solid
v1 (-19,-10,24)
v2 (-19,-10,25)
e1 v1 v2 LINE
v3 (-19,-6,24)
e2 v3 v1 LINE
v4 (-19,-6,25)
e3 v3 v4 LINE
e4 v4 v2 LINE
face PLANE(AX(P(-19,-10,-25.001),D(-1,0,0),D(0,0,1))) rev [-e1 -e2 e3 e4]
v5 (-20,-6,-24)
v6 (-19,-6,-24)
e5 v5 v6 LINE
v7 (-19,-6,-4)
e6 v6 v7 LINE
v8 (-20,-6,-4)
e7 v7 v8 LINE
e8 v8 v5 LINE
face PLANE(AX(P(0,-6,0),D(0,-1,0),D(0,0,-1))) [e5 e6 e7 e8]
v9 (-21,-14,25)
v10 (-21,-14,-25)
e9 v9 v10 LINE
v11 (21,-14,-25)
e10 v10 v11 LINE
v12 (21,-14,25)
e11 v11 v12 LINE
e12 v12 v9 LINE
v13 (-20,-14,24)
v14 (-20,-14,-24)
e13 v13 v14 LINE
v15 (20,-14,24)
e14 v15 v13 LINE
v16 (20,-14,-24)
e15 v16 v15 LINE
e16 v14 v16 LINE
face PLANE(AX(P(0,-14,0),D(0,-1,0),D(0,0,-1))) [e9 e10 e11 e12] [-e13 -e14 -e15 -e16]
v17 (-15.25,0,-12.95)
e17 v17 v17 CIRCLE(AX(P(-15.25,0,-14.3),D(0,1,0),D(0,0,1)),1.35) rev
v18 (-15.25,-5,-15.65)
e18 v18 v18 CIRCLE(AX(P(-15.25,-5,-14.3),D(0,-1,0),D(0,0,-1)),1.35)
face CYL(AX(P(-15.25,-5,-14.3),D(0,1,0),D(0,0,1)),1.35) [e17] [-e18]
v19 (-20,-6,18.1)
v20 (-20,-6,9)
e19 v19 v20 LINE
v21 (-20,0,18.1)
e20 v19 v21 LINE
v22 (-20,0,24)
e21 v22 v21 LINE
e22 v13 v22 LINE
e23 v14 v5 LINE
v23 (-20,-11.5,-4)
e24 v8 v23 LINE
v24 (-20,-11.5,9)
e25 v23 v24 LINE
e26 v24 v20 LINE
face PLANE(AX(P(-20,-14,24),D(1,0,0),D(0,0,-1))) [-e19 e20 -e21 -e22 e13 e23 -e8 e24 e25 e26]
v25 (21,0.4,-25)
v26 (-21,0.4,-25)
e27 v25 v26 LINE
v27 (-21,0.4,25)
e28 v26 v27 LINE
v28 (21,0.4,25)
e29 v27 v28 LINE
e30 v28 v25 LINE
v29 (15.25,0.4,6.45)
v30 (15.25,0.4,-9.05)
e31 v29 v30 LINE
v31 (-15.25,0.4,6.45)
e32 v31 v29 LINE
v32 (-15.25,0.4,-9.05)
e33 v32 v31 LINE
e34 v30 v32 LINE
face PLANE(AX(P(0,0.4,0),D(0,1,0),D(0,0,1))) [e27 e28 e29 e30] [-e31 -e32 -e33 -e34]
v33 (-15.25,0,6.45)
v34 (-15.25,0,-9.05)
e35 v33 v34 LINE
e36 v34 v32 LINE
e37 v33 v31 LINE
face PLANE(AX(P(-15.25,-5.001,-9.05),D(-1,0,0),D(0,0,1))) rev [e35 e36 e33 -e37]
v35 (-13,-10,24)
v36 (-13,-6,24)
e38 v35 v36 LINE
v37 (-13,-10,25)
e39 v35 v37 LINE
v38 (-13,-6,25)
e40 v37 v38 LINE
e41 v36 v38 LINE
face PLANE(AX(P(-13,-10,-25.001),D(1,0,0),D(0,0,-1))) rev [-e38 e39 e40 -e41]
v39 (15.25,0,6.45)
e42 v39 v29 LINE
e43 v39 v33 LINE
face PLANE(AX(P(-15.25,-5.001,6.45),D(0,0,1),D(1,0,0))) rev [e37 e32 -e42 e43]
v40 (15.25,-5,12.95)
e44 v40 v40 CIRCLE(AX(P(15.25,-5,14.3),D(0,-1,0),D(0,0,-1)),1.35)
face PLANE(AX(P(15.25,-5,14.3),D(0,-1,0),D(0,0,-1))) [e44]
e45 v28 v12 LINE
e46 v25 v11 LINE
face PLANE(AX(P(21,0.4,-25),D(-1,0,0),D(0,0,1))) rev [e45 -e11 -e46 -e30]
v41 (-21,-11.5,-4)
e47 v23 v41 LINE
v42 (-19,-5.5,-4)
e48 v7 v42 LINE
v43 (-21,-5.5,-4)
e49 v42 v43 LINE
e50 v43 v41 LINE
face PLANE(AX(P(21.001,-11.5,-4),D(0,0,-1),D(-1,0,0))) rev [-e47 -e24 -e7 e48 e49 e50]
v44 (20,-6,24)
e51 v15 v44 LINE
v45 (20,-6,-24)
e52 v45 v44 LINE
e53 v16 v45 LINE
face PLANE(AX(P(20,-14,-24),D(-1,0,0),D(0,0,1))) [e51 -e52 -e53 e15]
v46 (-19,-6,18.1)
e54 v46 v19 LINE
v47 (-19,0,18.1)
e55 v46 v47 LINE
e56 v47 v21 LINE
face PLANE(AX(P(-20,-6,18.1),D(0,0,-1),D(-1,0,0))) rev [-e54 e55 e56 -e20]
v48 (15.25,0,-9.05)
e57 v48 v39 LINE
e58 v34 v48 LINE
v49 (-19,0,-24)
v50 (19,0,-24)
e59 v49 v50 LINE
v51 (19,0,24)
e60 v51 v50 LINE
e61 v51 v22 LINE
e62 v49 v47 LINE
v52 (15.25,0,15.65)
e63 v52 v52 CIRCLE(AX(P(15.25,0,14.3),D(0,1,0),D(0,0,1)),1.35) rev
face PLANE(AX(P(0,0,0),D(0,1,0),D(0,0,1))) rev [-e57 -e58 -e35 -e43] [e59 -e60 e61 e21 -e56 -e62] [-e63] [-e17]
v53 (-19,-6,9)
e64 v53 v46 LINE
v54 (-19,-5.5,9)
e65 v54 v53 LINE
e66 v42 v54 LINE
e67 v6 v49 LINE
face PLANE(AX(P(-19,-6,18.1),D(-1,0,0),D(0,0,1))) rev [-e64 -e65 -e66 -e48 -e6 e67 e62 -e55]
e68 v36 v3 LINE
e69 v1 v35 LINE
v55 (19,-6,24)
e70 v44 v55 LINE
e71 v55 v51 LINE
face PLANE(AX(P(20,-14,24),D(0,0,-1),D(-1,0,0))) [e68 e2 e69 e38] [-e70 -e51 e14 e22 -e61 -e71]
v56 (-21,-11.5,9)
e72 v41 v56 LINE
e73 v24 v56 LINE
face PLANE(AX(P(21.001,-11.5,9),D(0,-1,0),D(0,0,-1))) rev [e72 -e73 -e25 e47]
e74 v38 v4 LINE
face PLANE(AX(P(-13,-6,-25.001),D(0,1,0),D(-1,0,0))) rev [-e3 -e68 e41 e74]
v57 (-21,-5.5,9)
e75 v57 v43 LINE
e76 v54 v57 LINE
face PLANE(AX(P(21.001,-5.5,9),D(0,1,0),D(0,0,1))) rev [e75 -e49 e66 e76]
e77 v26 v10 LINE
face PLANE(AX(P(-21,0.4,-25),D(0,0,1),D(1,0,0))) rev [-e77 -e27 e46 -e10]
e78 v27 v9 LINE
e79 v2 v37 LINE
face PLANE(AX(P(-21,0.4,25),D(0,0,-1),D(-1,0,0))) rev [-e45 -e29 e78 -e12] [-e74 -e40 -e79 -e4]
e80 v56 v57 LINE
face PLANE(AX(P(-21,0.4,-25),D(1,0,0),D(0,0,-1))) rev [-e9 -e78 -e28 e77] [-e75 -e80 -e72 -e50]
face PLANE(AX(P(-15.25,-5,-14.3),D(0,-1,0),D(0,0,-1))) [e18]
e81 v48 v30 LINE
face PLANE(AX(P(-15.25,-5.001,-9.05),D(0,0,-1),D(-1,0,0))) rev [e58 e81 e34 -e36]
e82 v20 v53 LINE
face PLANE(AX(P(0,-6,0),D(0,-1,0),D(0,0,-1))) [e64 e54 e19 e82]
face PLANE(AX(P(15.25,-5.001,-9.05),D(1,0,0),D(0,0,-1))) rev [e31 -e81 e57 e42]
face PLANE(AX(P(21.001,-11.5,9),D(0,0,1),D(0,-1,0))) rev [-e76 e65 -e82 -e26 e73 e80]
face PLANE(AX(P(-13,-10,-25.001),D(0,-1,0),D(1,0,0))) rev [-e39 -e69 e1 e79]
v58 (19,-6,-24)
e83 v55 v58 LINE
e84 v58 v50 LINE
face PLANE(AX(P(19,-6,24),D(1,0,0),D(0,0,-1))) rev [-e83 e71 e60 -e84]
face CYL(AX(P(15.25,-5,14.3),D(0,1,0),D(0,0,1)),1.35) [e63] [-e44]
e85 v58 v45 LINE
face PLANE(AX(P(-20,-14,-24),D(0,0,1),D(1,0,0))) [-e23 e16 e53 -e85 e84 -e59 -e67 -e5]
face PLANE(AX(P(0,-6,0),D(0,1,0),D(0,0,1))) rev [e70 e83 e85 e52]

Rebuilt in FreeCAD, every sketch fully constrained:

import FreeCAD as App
import Part
import Sketcher

V = App.Vector
Q = App.Units.Quantity


def add_polygon(sketch, points):
    """Adds a closed chain of lines whose ends are joined by coincident constraints."""
    first, n = sketch.GeometryCount, len(points)
    for a, b in zip(points, points[1:] + points[:1]):
        sketch.addGeometry(Part.LineSegment(App.Vector(*a, 0), App.Vector(*b, 0)), False)
    for i in range(n):
        sketch.addConstraint(Sketcher.Constraint("Coincident", first + i, 2, first + (i + 1) % n, 1))

doc = App.newDocument("Part")
body = doc.addObject("PartDesign::Body", "Body")

# Sketch on XZ plane
sketch1 = body.newObject("Sketcher::SketchObject", "Sketch")
sketch1.AttachmentSupport = (doc.getObject("XZ_Plane"), [""])
sketch1.MapMode = "FlatFace"
add_polygon(sketch1, [(-21, -25), (-21, 25), (21, 25), (21, -25)])  # lines 0-3
sketch1.addConstraint([
    Sketcher.Constraint("Vertical", 0),
    Sketcher.Constraint("Horizontal", 1),
    Sketcher.Constraint("Vertical", 2),
    Sketcher.Constraint("Horizontal", 3),
    Sketcher.Constraint("Symmetric", 0, 2, 2, 2, -1, 1),
    Sketcher.Constraint("DistanceX", 1, 1, 1, 2, Q("42 mm")),
    Sketcher.Constraint("DistanceY", 0, 1, 0, 2, Q("50 mm")),
])
pad1 = body.newObject("PartDesign::Pad", "Pad")
pad1.Profile = sketch1
pad1.Length = 0.4
pad1.Reversed = True

# Sketch on XZ plane
sketch2 = body.newObject("Sketcher::SketchObject", "Sketch001")
sketch2.AttachmentSupport = (doc.getObject("XZ_Plane"), [""])
sketch2.MapMode = "FlatFace"
sketch2.addGeometry([
    Part.Circle(V(15.2, 14.3, 0), V(0, 0, 1), 1.4),
    Part.Circle(V(-15.2, -14.3, 0), V(0, 0, 1), 1.4),
], False)
sketch2.addConstraint([
    Sketcher.Constraint("Equal", 0, 1),
    Sketcher.Constraint("Symmetric", 0, 3, 1, 3, -1, 1),
    Sketcher.Constraint("Diameter", 0, Q("2.7 mm")),
    Sketcher.Constraint("DistanceY", -1, 1, 0, 3, Q("14.3 mm")),
    Sketcher.Constraint("DistanceX", 1, 3, 0, 3, Q("30.5 mm")),
])
pad2 = body.newObject("PartDesign::Pad", "Pad001")
pad2.Profile = sketch2
pad2.Length = 5

# Sketch on XZ plane
sketch3 = body.newObject("Sketcher::SketchObject", "Sketch002")
sketch3.AttachmentSupport = (doc.getObject("XZ_Plane"), [""])
sketch3.MapMode = "FlatFace"
sketch3.AttachmentOffset = App.Placement(V(0, 0, -0.4), App.Rotation())
add_polygon(sketch3, [(-15, -9), (-15, 6), (15, 6), (15, -9)])  # lines 0-3
sketch3.addConstraint([
    Sketcher.Constraint("Vertical", 0),
    Sketcher.Constraint("Horizontal", 1),
    Sketcher.Constraint("Vertical", 2),
    Sketcher.Constraint("Horizontal", 3),
    Sketcher.Constraint("DistanceX", 1, 1, 1, 2, Q("30.5 mm")),
    Sketcher.Constraint("DistanceY", 0, 1, 0, 2, Q("15.5 mm")),
    Sketcher.Constraint("DistanceX", 0, 2, -1, 1, Q("15.25 mm")),
    Sketcher.Constraint("DistanceY", -1, 1, 0, 2, Q("6.45 mm")),
])
pocket1 = body.newObject("PartDesign::Pocket", "Pocket")
pocket1.Profile = sketch3
pocket1.Type = "UpToFirst"
pocket1.Reversed = True

# Sketch on XZ plane
sketch4 = body.newObject("Sketcher::SketchObject", "Sketch003")
sketch4.AttachmentSupport = (doc.getObject("XZ_Plane"), [""])
sketch4.MapMode = "FlatFace"
add_polygon(sketch4, [(-21, 25), (-21, -25), (21, -25), (21, 25)])  # lines 0-3
add_polygon(sketch4, [(20, -24), (-20, -24), (-20, 24), (20, 24)])  # lines 4-7
sketch4.addConstraint([
    Sketcher.Constraint("Vertical", 0),
    Sketcher.Constraint("Horizontal", 1),
    Sketcher.Constraint("Vertical", 2),
    Sketcher.Constraint("Horizontal", 3),
    Sketcher.Constraint("Horizontal", 4),
    Sketcher.Constraint("Vertical", 5),
    Sketcher.Constraint("Horizontal", 6),
    Sketcher.Constraint("Vertical", 7),
    Sketcher.Constraint("Symmetric", 0, 2, 2, 2, -1, 1),
    Sketcher.Constraint("Symmetric", 4, 2, 6, 2, -1, 1),
    Sketcher.Constraint("DistanceX", 1, 1, 1, 2, Q("42 mm")),
    Sketcher.Constraint("DistanceX", 4, 2, 4, 1, Q("40 mm")),
    Sketcher.Constraint("DistanceY", 0, 2, 0, 1, Q("50 mm")),
    Sketcher.Constraint("DistanceY", 5, 1, 5, 2, Q("48 mm")),
])
pad3 = body.newObject("PartDesign::Pad", "Pad002")
pad3.Profile = sketch4
pad3.Length = 14

# Sketch on XZ plane
sketch5 = body.newObject("Sketcher::SketchObject", "Sketch004")
sketch5.AttachmentSupport = (doc.getObject("XZ_Plane"), [""])
sketch5.MapMode = "FlatFace"
add_polygon(sketch5, [(-20, 18.1), (-20, -24), (-19, -24), (-19, 18.1)])  # lines 0-3
add_polygon(sketch5, [(19, 24), (19, -24), (20, -24), (20, 24)])  # lines 4-7
sketch5.addConstraint([
    Sketcher.Constraint("Vertical", 0),
    Sketcher.Constraint("Horizontal", 1),
    Sketcher.Constraint("Vertical", 2),
    Sketcher.Constraint("Horizontal", 3),
    Sketcher.Constraint("Vertical", 4),
    Sketcher.Constraint("Horizontal", 5),
    Sketcher.Constraint("Vertical", 6),
    Sketcher.Constraint("Horizontal", 7),
    Sketcher.Constraint("Symmetric", 0, 2, 6, 2, -1, 1),
    Sketcher.Constraint("Symmetric", 1, 2, 4, 2, -2),
    Sketcher.Constraint("DistanceX", 1, 1, 1, 2, Q("1 mm")),
    Sketcher.Constraint("DistanceY", 4, 2, 4, 1, Q("48 mm")),
    Sketcher.Constraint("DistanceY", 0, 2, 0, 1, Q("42.1 mm")),
    Sketcher.Constraint("DistanceX", 0, 2, -1, 1, Q("20 mm")),
])
pad4 = body.newObject("PartDesign::Pad", "Pad003")
pad4.Profile = sketch5
pad4.Length = 6

# Sketch on YZ plane
sketch6 = body.newObject("Sketcher::SketchObject", "Sketch005")
sketch6.AttachmentSupport = (doc.getObject("YZ_Plane"), [""])
sketch6.MapMode = "FlatFace"
sketch6.AttachmentOffset = App.Placement(V(0, 0, -21), App.Rotation())
add_polygon(sketch6, [(-6, -4), (-12, -4), (-12, 9), (-6, 9)])  # lines 0-3
sketch6.addConstraint([
    Sketcher.Constraint("Horizontal", 0),
    Sketcher.Constraint("Vertical", 1),
    Sketcher.Constraint("Horizontal", 2),
    Sketcher.Constraint("Vertical", 3),
    Sketcher.Constraint("DistanceX", 0, 2, 0, 1, Q("6 mm")),
    Sketcher.Constraint("DistanceY", 1, 1, 1, 2, Q("13 mm")),
    Sketcher.Constraint("DistanceY", 0, 2, -1, 1, Q("4 mm")),
    Sketcher.Constraint("DistanceX", 0, 2, -1, 1, Q("11.5 mm")),
])
pocket2 = body.newObject("PartDesign::Pocket", "Pocket001")
pocket2.Profile = sketch6
pocket2.Length = 2
pocket2.Reversed = True

# Sketch on XY plane
sketch7 = body.newObject("Sketcher::SketchObject", "Sketch006")
sketch7.AttachmentSupport = (doc.getObject("XY_Plane"), [""])
sketch7.MapMode = "FlatFace"
sketch7.AttachmentOffset = App.Placement(V(0, 0, 25), App.Rotation())
add_polygon(sketch7, [(-19, -6), (-19, -10), (-13, -10), (-13, -6)])  # lines 0-3
sketch7.addConstraint([
    Sketcher.Constraint("Vertical", 0),
    Sketcher.Constraint("Horizontal", 1),
    Sketcher.Constraint("Vertical", 2),
    Sketcher.Constraint("Horizontal", 3),
    Sketcher.Constraint("DistanceX", 1, 1, 1, 2, Q("6 mm")),
    Sketcher.Constraint("DistanceY", 0, 2, 0, 1, Q("4 mm")),
    Sketcher.Constraint("DistanceX", 0, 2, -1, 1, Q("19 mm")),
    Sketcher.Constraint("DistanceY", 0, 2, -1, 1, Q("10 mm")),
])
pocket3 = body.newObject("PartDesign::Pocket", "Pocket002")
pocket3.Profile = sketch7
pocket3.Type = "UpToFirst"

doc.recompute()
